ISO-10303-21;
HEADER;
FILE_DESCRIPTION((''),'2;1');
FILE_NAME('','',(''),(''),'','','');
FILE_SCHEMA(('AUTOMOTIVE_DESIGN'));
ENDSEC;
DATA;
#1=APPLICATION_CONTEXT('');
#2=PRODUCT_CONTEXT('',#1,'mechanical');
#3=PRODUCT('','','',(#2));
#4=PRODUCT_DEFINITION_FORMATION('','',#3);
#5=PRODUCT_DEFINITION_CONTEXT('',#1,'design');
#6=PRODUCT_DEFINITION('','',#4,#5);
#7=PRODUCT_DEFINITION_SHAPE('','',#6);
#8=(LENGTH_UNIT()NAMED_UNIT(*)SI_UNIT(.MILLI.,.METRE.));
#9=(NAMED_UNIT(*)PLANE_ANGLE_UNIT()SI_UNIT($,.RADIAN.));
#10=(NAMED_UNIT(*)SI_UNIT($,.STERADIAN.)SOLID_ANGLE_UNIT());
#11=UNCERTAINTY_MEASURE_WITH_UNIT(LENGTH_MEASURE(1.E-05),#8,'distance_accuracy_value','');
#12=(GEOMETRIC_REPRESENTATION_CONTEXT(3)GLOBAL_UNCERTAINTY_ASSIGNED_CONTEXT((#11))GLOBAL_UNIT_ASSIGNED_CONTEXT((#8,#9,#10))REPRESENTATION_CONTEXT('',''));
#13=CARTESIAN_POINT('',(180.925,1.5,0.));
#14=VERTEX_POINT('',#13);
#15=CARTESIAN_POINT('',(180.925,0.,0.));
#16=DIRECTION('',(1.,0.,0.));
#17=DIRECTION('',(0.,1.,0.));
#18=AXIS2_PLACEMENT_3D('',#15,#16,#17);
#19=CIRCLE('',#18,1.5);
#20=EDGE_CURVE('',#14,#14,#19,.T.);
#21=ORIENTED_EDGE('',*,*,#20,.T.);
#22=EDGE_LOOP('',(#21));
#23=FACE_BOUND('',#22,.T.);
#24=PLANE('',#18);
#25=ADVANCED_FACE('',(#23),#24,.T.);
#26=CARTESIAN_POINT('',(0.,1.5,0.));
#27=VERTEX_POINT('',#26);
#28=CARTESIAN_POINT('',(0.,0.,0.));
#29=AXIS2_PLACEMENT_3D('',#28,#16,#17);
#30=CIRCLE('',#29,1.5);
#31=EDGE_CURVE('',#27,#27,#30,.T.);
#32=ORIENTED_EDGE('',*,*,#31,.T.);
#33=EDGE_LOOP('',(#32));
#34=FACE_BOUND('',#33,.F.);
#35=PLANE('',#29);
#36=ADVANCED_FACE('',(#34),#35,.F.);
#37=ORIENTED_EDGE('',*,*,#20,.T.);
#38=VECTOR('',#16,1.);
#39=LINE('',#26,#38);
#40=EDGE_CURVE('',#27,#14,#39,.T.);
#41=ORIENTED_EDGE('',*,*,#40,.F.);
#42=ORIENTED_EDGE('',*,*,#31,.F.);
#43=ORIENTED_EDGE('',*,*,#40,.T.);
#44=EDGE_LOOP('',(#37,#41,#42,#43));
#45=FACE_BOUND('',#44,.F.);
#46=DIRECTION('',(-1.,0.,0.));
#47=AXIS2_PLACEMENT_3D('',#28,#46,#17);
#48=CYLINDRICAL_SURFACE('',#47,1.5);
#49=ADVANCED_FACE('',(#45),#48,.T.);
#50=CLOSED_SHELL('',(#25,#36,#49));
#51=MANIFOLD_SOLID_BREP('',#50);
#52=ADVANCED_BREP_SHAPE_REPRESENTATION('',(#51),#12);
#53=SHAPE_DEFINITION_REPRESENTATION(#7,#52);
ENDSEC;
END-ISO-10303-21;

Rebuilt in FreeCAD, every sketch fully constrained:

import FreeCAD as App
import Part
import Sketcher

V = App.Vector

doc = App.newDocument("Part")
body = doc.addObject("PartDesign::Body", "Body")

sketch1 = body.newObject("Sketcher::SketchObject", "Sketch")
sketch1.AttachmentSupport = (doc.getObject("YZ_Plane"), [""])
sketch1.MapMode = "FlatFace"
sketch1.addGeometry(Part.Circle(V(0, 0, 0), V(0, 0, 1), 1.5), False)
sketch1.addConstraint(Sketcher.Constraint("Coincident", 0, 3, -1, 1))
sketch1.addConstraint(Sketcher.Constraint("Diameter", 0, 3.0))
pad1 = body.newObject("PartDesign::Pad", "Pad")
pad1.Profile = sketch1
pad1.Length = 180.925

doc.recompute()
